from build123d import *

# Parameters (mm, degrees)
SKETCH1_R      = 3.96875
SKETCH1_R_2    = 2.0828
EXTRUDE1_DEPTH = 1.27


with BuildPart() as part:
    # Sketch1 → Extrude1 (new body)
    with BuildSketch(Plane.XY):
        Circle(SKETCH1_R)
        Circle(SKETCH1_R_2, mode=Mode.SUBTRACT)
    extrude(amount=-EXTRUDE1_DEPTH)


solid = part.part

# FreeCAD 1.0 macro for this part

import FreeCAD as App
import Part
import Sketcher

V = App.Vector
Q = App.Units.Quantity

doc = App.newDocument("Part")
body = doc.addObject("PartDesign::Body", "Body")

sketch1 = doc.addObject("Sketcher::SketchObject", "Sketch")
body.addObject(sketch1)
sketch1.AttachmentSupport = (doc.XY_Plane, [""])
sketch1.MapMode = "FlatFace"
sketch1.addGeometry([
    Part.Circle(V(0, 0, 0), V(0, 0, 1), 4),
    Part.Circle(V(0, 0, 0), V(0, 0, 1), 2.1),
], False)
sketch1.addConstraint([
    Sketcher.Constraint("Coincident", 0, 3, -1, 1),
    Sketcher.Constraint("Coincident", 1, 3, -1, 1),
    Sketcher.Constraint("Diameter", 0, Q("0.3125 in")),
    Sketcher.Constraint("Diameter", 1, Q("0.164 in")),
])
pad1 = doc.addObject("PartDesign::Pad", "Pad")
body.addObject(pad1)
pad1.Profile = sketch1
pad1.Length = Q("0.05 in")
pad1.Reversed = True

doc.recompute()
